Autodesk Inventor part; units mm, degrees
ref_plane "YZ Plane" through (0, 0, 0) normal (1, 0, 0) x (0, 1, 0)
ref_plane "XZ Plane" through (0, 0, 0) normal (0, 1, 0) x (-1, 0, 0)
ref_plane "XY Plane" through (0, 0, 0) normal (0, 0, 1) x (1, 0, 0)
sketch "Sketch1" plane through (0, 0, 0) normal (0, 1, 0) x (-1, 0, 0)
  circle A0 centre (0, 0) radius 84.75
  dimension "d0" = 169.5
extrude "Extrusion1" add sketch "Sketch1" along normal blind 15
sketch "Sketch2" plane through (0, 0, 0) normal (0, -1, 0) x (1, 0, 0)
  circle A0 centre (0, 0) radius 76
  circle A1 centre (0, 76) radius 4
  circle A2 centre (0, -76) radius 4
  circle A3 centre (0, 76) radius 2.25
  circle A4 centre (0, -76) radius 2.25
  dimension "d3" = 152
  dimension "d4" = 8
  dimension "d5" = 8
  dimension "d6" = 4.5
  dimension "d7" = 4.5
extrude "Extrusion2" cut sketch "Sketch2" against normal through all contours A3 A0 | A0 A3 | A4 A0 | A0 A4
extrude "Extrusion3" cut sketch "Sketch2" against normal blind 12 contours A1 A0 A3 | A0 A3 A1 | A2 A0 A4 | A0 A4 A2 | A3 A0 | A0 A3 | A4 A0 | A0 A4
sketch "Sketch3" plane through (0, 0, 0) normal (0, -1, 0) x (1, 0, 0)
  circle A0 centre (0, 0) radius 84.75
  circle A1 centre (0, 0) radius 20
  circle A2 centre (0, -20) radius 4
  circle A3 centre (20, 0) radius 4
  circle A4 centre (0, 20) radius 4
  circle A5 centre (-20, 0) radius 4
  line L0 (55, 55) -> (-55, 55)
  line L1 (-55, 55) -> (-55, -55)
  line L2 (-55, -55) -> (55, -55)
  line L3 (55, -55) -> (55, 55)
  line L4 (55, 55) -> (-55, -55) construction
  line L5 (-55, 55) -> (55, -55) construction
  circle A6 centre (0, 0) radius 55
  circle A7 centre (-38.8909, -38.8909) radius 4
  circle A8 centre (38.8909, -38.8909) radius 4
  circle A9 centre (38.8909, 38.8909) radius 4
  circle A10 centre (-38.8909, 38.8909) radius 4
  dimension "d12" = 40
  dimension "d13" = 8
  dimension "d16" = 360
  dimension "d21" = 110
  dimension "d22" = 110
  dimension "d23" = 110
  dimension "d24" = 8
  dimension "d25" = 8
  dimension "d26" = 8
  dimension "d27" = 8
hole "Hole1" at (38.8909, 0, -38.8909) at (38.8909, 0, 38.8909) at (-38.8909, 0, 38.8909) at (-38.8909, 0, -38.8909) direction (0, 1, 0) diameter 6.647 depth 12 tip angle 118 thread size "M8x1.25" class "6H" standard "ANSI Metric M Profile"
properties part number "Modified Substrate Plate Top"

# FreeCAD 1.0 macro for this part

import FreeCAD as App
import Part
import Sketcher

V = App.Vector

doc = App.newDocument("Part")
body = doc.addObject("PartDesign::Body", "Body")

sketch1 = doc.addObject("Sketcher::SketchObject", "Sketch")
body.addObject(sketch1)
sketch1.AttachmentSupport = (doc.XZ_Plane, [""])
sketch1.MapMode = "FlatFace"
sketch1.addGeometry(Part.Circle(V(0, 0, 0), V(0, 0, 1), 85), False)
sketch1.addConstraint(Sketcher.Constraint("Coincident", 0, 3, -1, 1))
sketch1.addConstraint(Sketcher.Constraint("Diameter", 0, 169.5))
pad1 = doc.addObject("PartDesign::Pad", "Pad")
body.addObject(pad1)
pad1.Profile = sketch1
pad1.Length = 15
pad1.Reversed = True

sketch2 = doc.addObject("Sketcher::SketchObject", "Sketch001")
body.addObject(sketch2)
sketch2.AttachmentSupport = (doc.XZ_Plane, [""])
sketch2.MapMode = "FlatFace"
sketch2.addGeometry(Part.Circle(V(0, 76, 0), V(0, 0, 1), 2.2), False)
sketch2.addGeometry(Part.Circle(V(0, -76, 0), V(0, 0, 1), 2.2), False)
sketch2.addConstraint(Sketcher.Constraint("Equal", 0, 1))
sketch2.addConstraint(Sketcher.Constraint("Symmetric", 0, 3, 1, 3, -1, 1))
sketch2.addConstraint(Sketcher.Constraint("PointOnObject", 0, 3, -2))
sketch2.addConstraint(Sketcher.Constraint("Diameter", 0, 4.5))
sketch2.addConstraint(Sketcher.Constraint("DistanceY", 1, 3, 0, 3, 152.0))
pocket1 = doc.addObject("PartDesign::Pocket", "Pocket")
body.addObject(pocket1)
pocket1.Profile = sketch2
pocket1.Type = "ThroughAll"

sketch3 = doc.addObject("Sketcher::SketchObject", "Sketch002")
body.addObject(sketch3)
sketch3.AttachmentSupport = (doc.XZ_Plane, [""])
sketch3.MapMode = "FlatFace"
sketch3.addGeometry(Part.Circle(V(0, 76, 0), V(0, 0, 1), 4), False)
sketch3.addGeometry(Part.Circle(V(0, -76, 0), V(0, 0, 1), 4), False)
sketch3.addConstraint(Sketcher.Constraint("Equal", 0, 1))
sketch3.addConstraint(Sketcher.Constraint("Symmetric", 0, 3, 1, 3, -1, 1))
sketch3.addConstraint(Sketcher.Constraint("PointOnObject", 0, 3, -2))
sketch3.addConstraint(Sketcher.Constraint("Diameter", 0, 8.0))
sketch3.addConstraint(Sketcher.Constraint("DistanceY", 1, 3, 0, 3, 152.0))
pocket2 = doc.addObject("PartDesign::Pocket", "Pocket001")
body.addObject(pocket2)
pocket2.Profile = sketch3
pocket2.Length = 12

sketch4 = doc.addObject("Sketcher::SketchObject", "Sketch003")
body.addObject(sketch4)
sketch4.AttachmentSupport = (doc.XZ_Plane, [""])
sketch4.MapMode = "FlatFace"
sketch4.addGeometry(Part.Circle(V(38.9, -38.9, 0), V(0, 0, 1), 3.3), False)
sketch4.addGeometry(Part.Circle(V(38.9, 38.9, 0), V(0, 0, 1), 3.3), False)
sketch4.addGeometry(Part.Circle(V(-38.9, 38.9, 0), V(0, 0, 1), 3.3), False)
sketch4.addGeometry(Part.Circle(V(-38.9, -38.9, 0), V(0, 0, 1), 3.3), False)
sketch4.addConstraint(Sketcher.Constraint("Equal", 0, 1))
sketch4.addConstraint(Sketcher.Constraint("Equal", 1, 2))
sketch4.addConstraint(Sketcher.Constraint("Equal", 2, 3))
sketch4.addConstraint(Sketcher.Constraint("Symmetric", 0, 3, 2, 3, -1, 1))
sketch4.addConstraint(Sketcher.Constraint("Symmetric", 1, 3, 3, 3, -1, 1))
sketch4.addConstraint(Sketcher.Constraint("Symmetric", 1, 3, 2, 3, -2))
sketch4.addConstraint(Sketcher.Constraint("Diameter", 0, 6.647))
sketch4.addConstraint(Sketcher.Constraint("DistanceX", -1, 1, 0, 3, 38.891))
sketch4.addConstraint(Sketcher.Constraint("DistanceY", 0, 3, -1, 1, 38.891))
doc.recompute()
hole = doc.addObject("PartDesign::Hole", "Hole")
body.addObject(hole)
hole.Profile = sketch4
hole.ThreadType = "None"
hole.Diameter = 6.647
hole.DepthType = "Dimension"
hole.Depth = 12
hole.DrillPoint = "Angled"
hole.DrillPointAngle = 118

doc.recompute()
